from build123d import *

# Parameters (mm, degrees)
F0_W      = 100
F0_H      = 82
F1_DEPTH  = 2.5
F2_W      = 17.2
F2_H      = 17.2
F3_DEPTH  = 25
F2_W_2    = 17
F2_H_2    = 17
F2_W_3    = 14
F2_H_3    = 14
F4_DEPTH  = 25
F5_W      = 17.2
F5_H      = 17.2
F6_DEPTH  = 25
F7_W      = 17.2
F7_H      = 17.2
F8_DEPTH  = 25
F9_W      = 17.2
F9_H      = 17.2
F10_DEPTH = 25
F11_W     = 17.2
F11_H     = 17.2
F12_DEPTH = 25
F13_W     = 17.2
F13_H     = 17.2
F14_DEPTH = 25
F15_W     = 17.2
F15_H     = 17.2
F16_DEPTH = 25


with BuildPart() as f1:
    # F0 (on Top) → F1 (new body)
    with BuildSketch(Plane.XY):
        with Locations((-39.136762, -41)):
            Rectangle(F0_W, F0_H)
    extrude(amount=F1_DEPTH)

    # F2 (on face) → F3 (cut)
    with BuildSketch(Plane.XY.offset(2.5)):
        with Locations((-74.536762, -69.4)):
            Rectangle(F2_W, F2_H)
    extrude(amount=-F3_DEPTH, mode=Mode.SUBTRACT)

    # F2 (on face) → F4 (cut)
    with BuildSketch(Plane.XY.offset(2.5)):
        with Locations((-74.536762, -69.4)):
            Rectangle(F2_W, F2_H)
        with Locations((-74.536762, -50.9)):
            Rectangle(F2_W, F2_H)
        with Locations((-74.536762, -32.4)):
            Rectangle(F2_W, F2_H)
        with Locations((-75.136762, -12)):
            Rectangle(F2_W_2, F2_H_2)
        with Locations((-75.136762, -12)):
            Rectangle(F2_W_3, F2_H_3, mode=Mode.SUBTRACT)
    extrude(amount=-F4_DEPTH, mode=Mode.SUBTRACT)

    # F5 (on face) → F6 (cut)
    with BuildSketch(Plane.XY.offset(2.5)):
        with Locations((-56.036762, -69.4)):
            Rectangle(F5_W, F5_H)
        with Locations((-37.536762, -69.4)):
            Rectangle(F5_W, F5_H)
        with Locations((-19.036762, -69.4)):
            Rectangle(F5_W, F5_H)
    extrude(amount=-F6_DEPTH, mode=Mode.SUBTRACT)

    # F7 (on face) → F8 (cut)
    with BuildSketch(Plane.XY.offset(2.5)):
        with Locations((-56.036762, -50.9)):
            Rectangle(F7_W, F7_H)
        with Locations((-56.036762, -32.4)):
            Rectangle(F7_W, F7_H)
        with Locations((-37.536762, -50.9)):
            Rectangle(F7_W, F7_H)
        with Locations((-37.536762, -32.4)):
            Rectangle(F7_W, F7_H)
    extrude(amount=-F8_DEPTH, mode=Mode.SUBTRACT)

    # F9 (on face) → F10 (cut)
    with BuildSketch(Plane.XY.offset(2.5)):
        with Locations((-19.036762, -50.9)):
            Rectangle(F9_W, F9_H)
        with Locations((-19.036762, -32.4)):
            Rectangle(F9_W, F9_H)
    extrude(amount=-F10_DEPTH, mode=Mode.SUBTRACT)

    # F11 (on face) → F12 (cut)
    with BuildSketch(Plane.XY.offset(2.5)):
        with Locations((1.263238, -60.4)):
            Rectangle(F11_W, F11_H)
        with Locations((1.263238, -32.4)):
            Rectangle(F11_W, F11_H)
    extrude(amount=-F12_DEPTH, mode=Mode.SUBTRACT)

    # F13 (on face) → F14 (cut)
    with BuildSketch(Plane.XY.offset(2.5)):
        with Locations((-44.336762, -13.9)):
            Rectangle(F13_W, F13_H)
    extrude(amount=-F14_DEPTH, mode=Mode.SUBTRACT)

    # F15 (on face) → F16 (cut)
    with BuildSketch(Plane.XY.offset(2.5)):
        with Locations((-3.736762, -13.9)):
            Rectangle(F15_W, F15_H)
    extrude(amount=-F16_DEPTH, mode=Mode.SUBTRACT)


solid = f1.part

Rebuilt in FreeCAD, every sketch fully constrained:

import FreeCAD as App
import Part
import Sketcher


def add_polygon(sketch, points):
    """Adds a closed chain of lines whose ends are joined by coincident constraints."""
    first, n = sketch.GeometryCount, len(points)
    for a, b in zip(points, points[1:] + points[:1]):
        sketch.addGeometry(Part.LineSegment(App.Vector(*a, 0), App.Vector(*b, 0)), False)
    for i in range(n):
        sketch.addConstraint(Sketcher.Constraint("Coincident", first + i, 2, first + (i + 1) % n, 1))

doc = App.newDocument("Part")
body = doc.addObject("PartDesign::Body", "Body")
body.AllowCompound = True

sketch1 = body.newObject("Sketcher::SketchObject", "Sketch")
sketch1.AttachmentSupport = (doc.getObject("XY_Plane"), [""])
sketch1.MapMode = "FlatFace"
add_polygon(sketch1, [(-89.136762, 0), (-89.136762, -82), (10.863238, -82), (10.863238, 0)])
sketch1.addConstraint([
    Sketcher.Constraint("Vertical", 0),
    Sketcher.Constraint("Horizontal", 1),
    Sketcher.Constraint("Vertical", 2),
    Sketcher.Constraint("Horizontal", 3),
    Sketcher.Constraint("PointOnObject", 2, 2, -1),
    Sketcher.Constraint("DistanceX", 1, 1, 1, 2, 100.0),
    Sketcher.Constraint("DistanceY", 0, 2, 0, 1, 82.0),
    Sketcher.Constraint("DistanceX", -1, 1, 1, 2, 10.863238),
])
pad1 = body.newObject("PartDesign::Pad", "Pad")
pad1.Profile = sketch1
pad1.Length = 2.5

sketch2 = body.newObject("Sketcher::SketchObject", "Sketch001")
sketch2.AttachmentSupport = (doc.getObject("XY_Plane"), [""])
sketch2.MapMode = "FlatFace"
sketch2.AttachmentOffset = App.Placement(App.Vector(0, 0, 2.5), App.Rotation())
add_polygon(sketch2, [(-83.136762, -60.8), (-83.136762, -78), (-65.936762, -78), (-65.936762, -60.8)])
sketch2.addConstraint([
    Sketcher.Constraint("Vertical", 0),
    Sketcher.Constraint("Horizontal", 1),
    Sketcher.Constraint("Vertical", 2),
    Sketcher.Constraint("Horizontal", 3),
    Sketcher.Constraint("Equal", 3, 0),
    Sketcher.Constraint("DistanceX", 1, 1, 1, 2, 17.2),
    Sketcher.Constraint("DistanceY", 0, 2, -1, 1, 78.0),
    Sketcher.Constraint("DistanceX", 1, 2, -1, 1, 65.936762),
])
pocket1 = body.newObject("PartDesign::Pocket", "Pocket")
pocket1.Profile = sketch2
pocket1.Length = 25

sketch3 = body.newObject("Sketcher::SketchObject", "Sketch002")
sketch3.AttachmentSupport = (doc.getObject("XY_Plane"), [""])
sketch3.MapMode = "FlatFace"
sketch3.AttachmentOffset = App.Placement(App.Vector(0, 0, 2.5), App.Rotation())
add_polygon(sketch3, [(-83.136762, -60.8), (-83.136762, -78), (-65.936762, -78), (-65.936762, -60.8)])
add_polygon(sketch3, [(-83.136762, -42.3), (-83.136762, -59.5), (-65.936762, -59.5), (-65.936762, -42.3)])
add_polygon(sketch3, [(-83.136762, -23.8), (-83.136762, -41), (-65.936762, -41), (-65.936762, -23.8)])
add_polygon(sketch3, [(-83.636762, -3.5), (-83.636762, -20.5), (-66.636762, -20.5), (-66.636762, -3.5)])
add_polygon(sketch3, [(-68.136762, -19), (-82.136762, -19), (-82.136762, -5), (-68.136762, -5)])
sketch3.addConstraint([
    Sketcher.Constraint("Vertical", 0),
    Sketcher.Constraint("Horizontal", 1),
    Sketcher.Constraint("Vertical", 2),
    Sketcher.Constraint("Horizontal", 3),
    Sketcher.Constraint("Vertical", 4),
    Sketcher.Constraint("Horizontal", 5),
    Sketcher.Constraint("Vertical", 6),
    Sketcher.Constraint("Horizontal", 7),
    Sketcher.Constraint("Vertical", 8),
    Sketcher.Constraint("Horizontal", 9),
    Sketcher.Constraint("Vertical", 10),
    Sketcher.Constraint("Horizontal", 11),
    Sketcher.Constraint("Vertical", 12),
    Sketcher.Constraint("Horizontal", 13),
    Sketcher.Constraint("Vertical", 14),
    Sketcher.Constraint("Horizontal", 15),
    Sketcher.Constraint("Horizontal", 16),
    Sketcher.Constraint("Vertical", 17),
    Sketcher.Constraint("Horizontal", 18),
    Sketcher.Constraint("Vertical", 19),
    Sketcher.Constraint("Vertical", 3, 2, 4, 2),
    Sketcher.Constraint("Vertical", 2, 2, 5, 2),
    Sketcher.Constraint("Vertical", 7, 2, 8, 2),
    Sketcher.Constraint("Vertical", 6, 2, 9, 2),
    Sketcher.Constraint("Equal", 11, 0),
    Sketcher.Constraint("Equal", 2, 4),
    Sketcher.Constraint("Equal", 6, 8),
    Sketcher.Constraint("Equal", 15, 12),
    Sketcher.Constraint("Equal", 18, 17),
    Sketcher.Constraint("DistanceX", 13, 1, 13, 2, 17.0),
    Sketcher.Constraint("DistanceX", 16, 2, 16, 1, 14.0),
    Sketcher.Constraint("DistanceX", 1, 1, 1, 2, 17.2),
    Sketcher.Constraint("DistanceY", 0, 2, -1, 1, 78.0),
    Sketcher.Constraint("DistanceY", 8, 2, -1, 1, 41.0),
    Sketcher.Constraint("DistanceY", 16, 2, -1, 1, 19.0),
    Sketcher.Constraint("DistanceX", 11, 2, 16, 2, 1.0),
    Sketcher.Constraint("DistanceY", 4, 2, -1, 1, 59.5),
    Sketcher.Constraint("DistanceY", 12, 2, -1, 1, 20.5),
    Sketcher.Constraint("DistanceX", 12, 2, 11, 2, 0.5),
    Sketcher.Constraint("DistanceX", 1, 2, -1, 1, 65.936762),
])
pocket2 = body.newObject("PartDesign::Pocket", "Pocket001")
pocket2.Profile = sketch3
pocket2.Length = 25

sketch4 = body.newObject("Sketcher::SketchObject", "Sketch003")
sketch4.AttachmentSupport = (doc.getObject("XY_Plane"), [""])
sketch4.MapMode = "FlatFace"
sketch4.AttachmentOffset = App.Placement(App.Vector(0, 0, 2.5), App.Rotation())
add_polygon(sketch4, [(-64.636762, -60.8), (-64.636762, -78), (-47.436762, -78), (-47.436762, -60.8)])
add_polygon(sketch4, [(-46.136762, -60.8), (-46.136762, -78), (-28.936762, -78), (-28.936762, -60.8)])
add_polygon(sketch4, [(-27.636762, -60.8), (-27.636762, -78), (-10.436762, -78), (-10.436762, -60.8)])
sketch4.addConstraint([
    Sketcher.Constraint("Vertical", 0),
    Sketcher.Constraint("Horizontal", 1),
    Sketcher.Constraint("Vertical", 2),
    Sketcher.Constraint("Horizontal", 3),
    Sketcher.Constraint("Vertical", 4),
    Sketcher.Constraint("Horizontal", 5),
    Sketcher.Constraint("Vertical", 6),
    Sketcher.Constraint("Horizontal", 7),
    Sketcher.Constraint("Vertical", 8),
    Sketcher.Constraint("Horizontal", 9),
    Sketcher.Constraint("Vertical", 10),
    Sketcher.Constraint("Horizontal", 11),
    Sketcher.Constraint("Horizontal", 1, 2, 4, 2),
    Sketcher.Constraint("Horizontal", 3, 2, 6, 2),
    Sketcher.Constraint("Horizontal", 5, 2, 8, 2),
    Sketcher.Constraint("Horizontal", 7, 2, 10, 2),
    Sketcher.Constraint("Equal", 3, 5),
    Sketcher.Constraint("Equal", 7, 9),
    Sketcher.Constraint("Equal", 11, 0),
    Sketcher.Constraint("DistanceX", 1, 1, 1, 2, 17.2),
    Sketcher.Constraint("DistanceY", 0, 2, -1, 1, 78.0),
    Sketcher.Constraint("DistanceX", 1, 2, 9, 2, 37.0),
    Sketcher.Constraint("DistanceX", 1, 2, 4, 2, 1.3),
    Sketcher.Constraint("DistanceX", 4, 2, -1, 1, 46.136762),
])
pocket3 = body.newObject("PartDesign::Pocket", "Pocket002")
pocket3.Profile = sketch4
pocket3.Length = 25

sketch5 = body.newObject("Sketcher::SketchObject", "Sketch004")
sketch5.AttachmentSupport = (doc.getObject("XY_Plane"), [""])
sketch5.MapMode = "FlatFace"
sketch5.AttachmentOffset = App.Placement(App.Vector(0, 0, 2.5), App.Rotation())
add_polygon(sketch5, [(-64.636762, -42.3), (-64.636762, -59.5), (-47.436762, -59.5), (-47.436762, -42.3)])
add_polygon(sketch5, [(-64.636762, -23.8), (-64.636762, -41), (-47.436762, -41), (-47.436762, -23.8)])
add_polygon(sketch5, [(-46.136762, -42.3), (-46.136762, -59.5), (-28.936762, -59.5), (-28.936762, -42.3)])
add_polygon(sketch5, [(-46.136762, -23.8), (-46.136762, -41), (-28.936762, -41), (-28.936762, -23.8)])
sketch5.addConstraint([
    Sketcher.Constraint("Vertical", 0),
    Sketcher.Constraint("Horizontal", 1),
    Sketcher.Constraint("Vertical", 2),
    Sketcher.Constraint("Horizontal", 3),
    Sketcher.Constraint("Vertical", 4),
    Sketcher.Constraint("Horizontal", 5),
    Sketcher.Constraint("Vertical", 6),
    Sketcher.Constraint("Horizontal", 7),
    Sketcher.Constraint("Vertical", 8),
    Sketcher.Constraint("Horizontal", 9),
    Sketcher.Constraint("Vertical", 10),
    Sketcher.Constraint("Horizontal", 11),
    Sketcher.Constraint("Vertical", 12),
    Sketcher.Constraint("Horizontal", 13),
    Sketcher.Constraint("Vertical", 14),
    Sketcher.Constraint("Horizontal", 15),
    Sketcher.Constraint("Horizontal", 1, 2, 8, 2),
    Sketcher.Constraint("Horizontal", 3, 2, 10, 2),
    Sketcher.Constraint("Horizontal", 5, 2, 12, 2),
    Sketcher.Constraint("Horizontal", 7, 2, 14, 2),
    Sketcher.Constraint("Vertical", 3, 2, 4, 2),
    Sketcher.Constraint("Vertical", 2, 2, 5, 2),
    Sketcher.Constraint("Vertical", 11, 2, 12, 2),
    Sketcher.Constraint("Vertical", 10, 2, 13, 2),
    Sketcher.Constraint("Equal", 7, 9),
    Sketcher.Constraint("Equal", 15, 0),
    Sketcher.Constraint("Equal", 2, 4),
    Sketcher.Constraint("DistanceX", 1, 1, 1, 2, 17.2),
    Sketcher.Constraint("DistanceY", 4, 2, -1, 1, 41.0),
    Sketcher.Constraint("DistanceY", 0, 2, -1, 1, 59.5),
    Sketcher.Constraint("DistanceX", 1, 2, 8, 2, 1.3),
    Sketcher.Constraint("DistanceX", 8, 2, -1, 1, 46.136762),
])
pocket4 = body.newObject("PartDesign::Pocket", "Pocket003")
pocket4.Profile = sketch5
pocket4.Length = 25

sketch6 = body.newObject("Sketcher::SketchObject", "Sketch005")
sketch6.AttachmentSupport = (doc.getObject("XY_Plane"), [""])
sketch6.MapMode = "FlatFace"
sketch6.AttachmentOffset = App.Placement(App.Vector(0, 0, 2.5), App.Rotation())
add_polygon(sketch6, [(-27.636762, -42.3), (-27.636762, -59.5), (-10.436762, -59.5), (-10.436762, -42.3)])
add_polygon(sketch6, [(-27.636762, -23.8), (-27.636762, -41), (-10.436762, -41), (-10.436762, -23.8)])
sketch6.addConstraint([
    Sketcher.Constraint("Vertical", 0),
    Sketcher.Constraint("Horizontal", 1),
    Sketcher.Constraint("Vertical", 2),
    Sketcher.Constraint("Horizontal", 3),
    Sketcher.Constraint("Vertical", 4),
    Sketcher.Constraint("Horizontal", 5),
    Sketcher.Constraint("Vertical", 6),
    Sketcher.Constraint("Horizontal", 7),
    Sketcher.Constraint("Vertical", 3, 2, 4, 2),
    Sketcher.Constraint("Vertical", 2, 2, 5, 2),
    Sketcher.Constraint("Equal", 7, 0),
    Sketcher.Constraint("Equal", 2, 4),
    Sketcher.Constraint("DistanceX", 1, 1, 1, 2, 17.2),
    Sketcher.Constraint("DistanceY", 4, 2, -1, 1, 41.0),
    Sketcher.Constraint("DistanceY", 0, 2, -1, 1, 59.5),
    Sketcher.Constraint("DistanceX", 0, 2, -1, 1, 27.636762),
])
pocket5 = body.newObject("PartDesign::Pocket", "Pocket004")
pocket5.Profile = sketch6
pocket5.Length = 25

sketch7 = body.newObject("Sketcher::SketchObject", "Sketch006")
sketch7.AttachmentSupport = (doc.getObject("XY_Plane"), [""])
sketch7.MapMode = "FlatFace"
sketch7.AttachmentOffset = App.Placement(App.Vector(0, 0, 2.5), App.Rotation())
add_polygon(sketch7, [(-7.336762, -51.8), (-7.336762, -69), (9.863238, -69), (9.863238, -51.8)])
add_polygon(sketch7, [(-7.336762, -23.8), (-7.336762, -41), (9.863238, -41), (9.863238, -23.8)])
sketch7.addConstraint([
    Sketcher.Constraint("Vertical", 0),
    Sketcher.Constraint("Horizontal", 1),
    Sketcher.Constraint("Vertical", 2),
    Sketcher.Constraint("Horizontal", 3),
    Sketcher.Constraint("Vertical", 4),
    Sketcher.Constraint("Horizontal", 5),
    Sketcher.Constraint("Vertical", 6),
    Sketcher.Constraint("Horizontal", 7),
    Sketcher.Constraint("Vertical", 3, 2, 4, 2),
    Sketcher.Constraint("Vertical", 2, 2, 5, 2),
    Sketcher.Constraint("Equal", 7, 0),
    Sketcher.Constraint("Equal", 2, 4),
    Sketcher.Constraint("DistanceX", 1, 1, 1, 2, 17.2),
    Sketcher.Constraint("DistanceY", 0, 2, -1, 1, 69.0),
    Sketcher.Constraint("DistanceY", 4, 2, -1, 1, 41.0),
    Sketcher.Constraint("DistanceX", -1, 1, 1, 2, 9.863238),
])
pocket6 = body.newObject("PartDesign::Pocket", "Pocket005")
pocket6.Profile = sketch7
pocket6.Length = 25

sketch8 = body.newObject("Sketcher::SketchObject", "Sketch007")
sketch8.AttachmentSupport = (doc.getObject("XY_Plane"), [""])
sketch8.MapMode = "FlatFace"
sketch8.AttachmentOffset = App.Placement(App.Vector(0, 0, 2.5), App.Rotation())
add_polygon(sketch8, [(-52.936762, -5.3), (-52.936762, -22.5), (-35.736762, -22.5), (-35.736762, -5.3)])
sketch8.addConstraint([
    Sketcher.Constraint("Vertical", 0),
    Sketcher.Constraint("Horizontal", 1),
    Sketcher.Constraint("Vertical", 2),
    Sketcher.Constraint("Horizontal", 3),
    Sketcher.Constraint("Equal", 3, 0),
    Sketcher.Constraint("DistanceX", 1, 1, 1, 2, 17.2),
    Sketcher.Constraint("DistanceY", 0, 2, -1, 1, 22.5),
    Sketcher.Constraint("DistanceX", 0, 2, -1, 1, 52.936762),
])
pocket7 = body.newObject("PartDesign::Pocket", "Pocket006")
pocket7.Profile = sketch8
pocket7.Length = 25

sketch9 = body.newObject("Sketcher::SketchObject", "Sketch008")
sketch9.AttachmentSupport = (doc.getObject("XY_Plane"), [""])
sketch9.MapMode = "FlatFace"
sketch9.AttachmentOffset = App.Placement(App.Vector(0, 0, 2.5), App.Rotation())
add_polygon(sketch9, [(-12.336762, -5.3), (-12.336762, -22.5), (4.863238, -22.5), (4.863238, -5.3)])
sketch9.addConstraint([
    Sketcher.Constraint("Vertical", 0),
    Sketcher.Constraint("Horizontal", 1),
    Sketcher.Constraint("Vertical", 2),
    Sketcher.Constraint("Horizontal", 3),
    Sketcher.Constraint("Equal", 3, 0),
    Sketcher.Constraint("DistanceX", 1, 1, 1, 2, 17.2),
    Sketcher.Constraint("DistanceY", 0, 2, -1, 1, 22.5),
    Sketcher.Constraint("DistanceX", 0, 2, -1, 1, 12.336762),
])
pocket8 = body.newObject("PartDesign::Pocket", "Pocket007")
pocket8.Profile = sketch9
pocket8.Length = 25

doc.recompute()
